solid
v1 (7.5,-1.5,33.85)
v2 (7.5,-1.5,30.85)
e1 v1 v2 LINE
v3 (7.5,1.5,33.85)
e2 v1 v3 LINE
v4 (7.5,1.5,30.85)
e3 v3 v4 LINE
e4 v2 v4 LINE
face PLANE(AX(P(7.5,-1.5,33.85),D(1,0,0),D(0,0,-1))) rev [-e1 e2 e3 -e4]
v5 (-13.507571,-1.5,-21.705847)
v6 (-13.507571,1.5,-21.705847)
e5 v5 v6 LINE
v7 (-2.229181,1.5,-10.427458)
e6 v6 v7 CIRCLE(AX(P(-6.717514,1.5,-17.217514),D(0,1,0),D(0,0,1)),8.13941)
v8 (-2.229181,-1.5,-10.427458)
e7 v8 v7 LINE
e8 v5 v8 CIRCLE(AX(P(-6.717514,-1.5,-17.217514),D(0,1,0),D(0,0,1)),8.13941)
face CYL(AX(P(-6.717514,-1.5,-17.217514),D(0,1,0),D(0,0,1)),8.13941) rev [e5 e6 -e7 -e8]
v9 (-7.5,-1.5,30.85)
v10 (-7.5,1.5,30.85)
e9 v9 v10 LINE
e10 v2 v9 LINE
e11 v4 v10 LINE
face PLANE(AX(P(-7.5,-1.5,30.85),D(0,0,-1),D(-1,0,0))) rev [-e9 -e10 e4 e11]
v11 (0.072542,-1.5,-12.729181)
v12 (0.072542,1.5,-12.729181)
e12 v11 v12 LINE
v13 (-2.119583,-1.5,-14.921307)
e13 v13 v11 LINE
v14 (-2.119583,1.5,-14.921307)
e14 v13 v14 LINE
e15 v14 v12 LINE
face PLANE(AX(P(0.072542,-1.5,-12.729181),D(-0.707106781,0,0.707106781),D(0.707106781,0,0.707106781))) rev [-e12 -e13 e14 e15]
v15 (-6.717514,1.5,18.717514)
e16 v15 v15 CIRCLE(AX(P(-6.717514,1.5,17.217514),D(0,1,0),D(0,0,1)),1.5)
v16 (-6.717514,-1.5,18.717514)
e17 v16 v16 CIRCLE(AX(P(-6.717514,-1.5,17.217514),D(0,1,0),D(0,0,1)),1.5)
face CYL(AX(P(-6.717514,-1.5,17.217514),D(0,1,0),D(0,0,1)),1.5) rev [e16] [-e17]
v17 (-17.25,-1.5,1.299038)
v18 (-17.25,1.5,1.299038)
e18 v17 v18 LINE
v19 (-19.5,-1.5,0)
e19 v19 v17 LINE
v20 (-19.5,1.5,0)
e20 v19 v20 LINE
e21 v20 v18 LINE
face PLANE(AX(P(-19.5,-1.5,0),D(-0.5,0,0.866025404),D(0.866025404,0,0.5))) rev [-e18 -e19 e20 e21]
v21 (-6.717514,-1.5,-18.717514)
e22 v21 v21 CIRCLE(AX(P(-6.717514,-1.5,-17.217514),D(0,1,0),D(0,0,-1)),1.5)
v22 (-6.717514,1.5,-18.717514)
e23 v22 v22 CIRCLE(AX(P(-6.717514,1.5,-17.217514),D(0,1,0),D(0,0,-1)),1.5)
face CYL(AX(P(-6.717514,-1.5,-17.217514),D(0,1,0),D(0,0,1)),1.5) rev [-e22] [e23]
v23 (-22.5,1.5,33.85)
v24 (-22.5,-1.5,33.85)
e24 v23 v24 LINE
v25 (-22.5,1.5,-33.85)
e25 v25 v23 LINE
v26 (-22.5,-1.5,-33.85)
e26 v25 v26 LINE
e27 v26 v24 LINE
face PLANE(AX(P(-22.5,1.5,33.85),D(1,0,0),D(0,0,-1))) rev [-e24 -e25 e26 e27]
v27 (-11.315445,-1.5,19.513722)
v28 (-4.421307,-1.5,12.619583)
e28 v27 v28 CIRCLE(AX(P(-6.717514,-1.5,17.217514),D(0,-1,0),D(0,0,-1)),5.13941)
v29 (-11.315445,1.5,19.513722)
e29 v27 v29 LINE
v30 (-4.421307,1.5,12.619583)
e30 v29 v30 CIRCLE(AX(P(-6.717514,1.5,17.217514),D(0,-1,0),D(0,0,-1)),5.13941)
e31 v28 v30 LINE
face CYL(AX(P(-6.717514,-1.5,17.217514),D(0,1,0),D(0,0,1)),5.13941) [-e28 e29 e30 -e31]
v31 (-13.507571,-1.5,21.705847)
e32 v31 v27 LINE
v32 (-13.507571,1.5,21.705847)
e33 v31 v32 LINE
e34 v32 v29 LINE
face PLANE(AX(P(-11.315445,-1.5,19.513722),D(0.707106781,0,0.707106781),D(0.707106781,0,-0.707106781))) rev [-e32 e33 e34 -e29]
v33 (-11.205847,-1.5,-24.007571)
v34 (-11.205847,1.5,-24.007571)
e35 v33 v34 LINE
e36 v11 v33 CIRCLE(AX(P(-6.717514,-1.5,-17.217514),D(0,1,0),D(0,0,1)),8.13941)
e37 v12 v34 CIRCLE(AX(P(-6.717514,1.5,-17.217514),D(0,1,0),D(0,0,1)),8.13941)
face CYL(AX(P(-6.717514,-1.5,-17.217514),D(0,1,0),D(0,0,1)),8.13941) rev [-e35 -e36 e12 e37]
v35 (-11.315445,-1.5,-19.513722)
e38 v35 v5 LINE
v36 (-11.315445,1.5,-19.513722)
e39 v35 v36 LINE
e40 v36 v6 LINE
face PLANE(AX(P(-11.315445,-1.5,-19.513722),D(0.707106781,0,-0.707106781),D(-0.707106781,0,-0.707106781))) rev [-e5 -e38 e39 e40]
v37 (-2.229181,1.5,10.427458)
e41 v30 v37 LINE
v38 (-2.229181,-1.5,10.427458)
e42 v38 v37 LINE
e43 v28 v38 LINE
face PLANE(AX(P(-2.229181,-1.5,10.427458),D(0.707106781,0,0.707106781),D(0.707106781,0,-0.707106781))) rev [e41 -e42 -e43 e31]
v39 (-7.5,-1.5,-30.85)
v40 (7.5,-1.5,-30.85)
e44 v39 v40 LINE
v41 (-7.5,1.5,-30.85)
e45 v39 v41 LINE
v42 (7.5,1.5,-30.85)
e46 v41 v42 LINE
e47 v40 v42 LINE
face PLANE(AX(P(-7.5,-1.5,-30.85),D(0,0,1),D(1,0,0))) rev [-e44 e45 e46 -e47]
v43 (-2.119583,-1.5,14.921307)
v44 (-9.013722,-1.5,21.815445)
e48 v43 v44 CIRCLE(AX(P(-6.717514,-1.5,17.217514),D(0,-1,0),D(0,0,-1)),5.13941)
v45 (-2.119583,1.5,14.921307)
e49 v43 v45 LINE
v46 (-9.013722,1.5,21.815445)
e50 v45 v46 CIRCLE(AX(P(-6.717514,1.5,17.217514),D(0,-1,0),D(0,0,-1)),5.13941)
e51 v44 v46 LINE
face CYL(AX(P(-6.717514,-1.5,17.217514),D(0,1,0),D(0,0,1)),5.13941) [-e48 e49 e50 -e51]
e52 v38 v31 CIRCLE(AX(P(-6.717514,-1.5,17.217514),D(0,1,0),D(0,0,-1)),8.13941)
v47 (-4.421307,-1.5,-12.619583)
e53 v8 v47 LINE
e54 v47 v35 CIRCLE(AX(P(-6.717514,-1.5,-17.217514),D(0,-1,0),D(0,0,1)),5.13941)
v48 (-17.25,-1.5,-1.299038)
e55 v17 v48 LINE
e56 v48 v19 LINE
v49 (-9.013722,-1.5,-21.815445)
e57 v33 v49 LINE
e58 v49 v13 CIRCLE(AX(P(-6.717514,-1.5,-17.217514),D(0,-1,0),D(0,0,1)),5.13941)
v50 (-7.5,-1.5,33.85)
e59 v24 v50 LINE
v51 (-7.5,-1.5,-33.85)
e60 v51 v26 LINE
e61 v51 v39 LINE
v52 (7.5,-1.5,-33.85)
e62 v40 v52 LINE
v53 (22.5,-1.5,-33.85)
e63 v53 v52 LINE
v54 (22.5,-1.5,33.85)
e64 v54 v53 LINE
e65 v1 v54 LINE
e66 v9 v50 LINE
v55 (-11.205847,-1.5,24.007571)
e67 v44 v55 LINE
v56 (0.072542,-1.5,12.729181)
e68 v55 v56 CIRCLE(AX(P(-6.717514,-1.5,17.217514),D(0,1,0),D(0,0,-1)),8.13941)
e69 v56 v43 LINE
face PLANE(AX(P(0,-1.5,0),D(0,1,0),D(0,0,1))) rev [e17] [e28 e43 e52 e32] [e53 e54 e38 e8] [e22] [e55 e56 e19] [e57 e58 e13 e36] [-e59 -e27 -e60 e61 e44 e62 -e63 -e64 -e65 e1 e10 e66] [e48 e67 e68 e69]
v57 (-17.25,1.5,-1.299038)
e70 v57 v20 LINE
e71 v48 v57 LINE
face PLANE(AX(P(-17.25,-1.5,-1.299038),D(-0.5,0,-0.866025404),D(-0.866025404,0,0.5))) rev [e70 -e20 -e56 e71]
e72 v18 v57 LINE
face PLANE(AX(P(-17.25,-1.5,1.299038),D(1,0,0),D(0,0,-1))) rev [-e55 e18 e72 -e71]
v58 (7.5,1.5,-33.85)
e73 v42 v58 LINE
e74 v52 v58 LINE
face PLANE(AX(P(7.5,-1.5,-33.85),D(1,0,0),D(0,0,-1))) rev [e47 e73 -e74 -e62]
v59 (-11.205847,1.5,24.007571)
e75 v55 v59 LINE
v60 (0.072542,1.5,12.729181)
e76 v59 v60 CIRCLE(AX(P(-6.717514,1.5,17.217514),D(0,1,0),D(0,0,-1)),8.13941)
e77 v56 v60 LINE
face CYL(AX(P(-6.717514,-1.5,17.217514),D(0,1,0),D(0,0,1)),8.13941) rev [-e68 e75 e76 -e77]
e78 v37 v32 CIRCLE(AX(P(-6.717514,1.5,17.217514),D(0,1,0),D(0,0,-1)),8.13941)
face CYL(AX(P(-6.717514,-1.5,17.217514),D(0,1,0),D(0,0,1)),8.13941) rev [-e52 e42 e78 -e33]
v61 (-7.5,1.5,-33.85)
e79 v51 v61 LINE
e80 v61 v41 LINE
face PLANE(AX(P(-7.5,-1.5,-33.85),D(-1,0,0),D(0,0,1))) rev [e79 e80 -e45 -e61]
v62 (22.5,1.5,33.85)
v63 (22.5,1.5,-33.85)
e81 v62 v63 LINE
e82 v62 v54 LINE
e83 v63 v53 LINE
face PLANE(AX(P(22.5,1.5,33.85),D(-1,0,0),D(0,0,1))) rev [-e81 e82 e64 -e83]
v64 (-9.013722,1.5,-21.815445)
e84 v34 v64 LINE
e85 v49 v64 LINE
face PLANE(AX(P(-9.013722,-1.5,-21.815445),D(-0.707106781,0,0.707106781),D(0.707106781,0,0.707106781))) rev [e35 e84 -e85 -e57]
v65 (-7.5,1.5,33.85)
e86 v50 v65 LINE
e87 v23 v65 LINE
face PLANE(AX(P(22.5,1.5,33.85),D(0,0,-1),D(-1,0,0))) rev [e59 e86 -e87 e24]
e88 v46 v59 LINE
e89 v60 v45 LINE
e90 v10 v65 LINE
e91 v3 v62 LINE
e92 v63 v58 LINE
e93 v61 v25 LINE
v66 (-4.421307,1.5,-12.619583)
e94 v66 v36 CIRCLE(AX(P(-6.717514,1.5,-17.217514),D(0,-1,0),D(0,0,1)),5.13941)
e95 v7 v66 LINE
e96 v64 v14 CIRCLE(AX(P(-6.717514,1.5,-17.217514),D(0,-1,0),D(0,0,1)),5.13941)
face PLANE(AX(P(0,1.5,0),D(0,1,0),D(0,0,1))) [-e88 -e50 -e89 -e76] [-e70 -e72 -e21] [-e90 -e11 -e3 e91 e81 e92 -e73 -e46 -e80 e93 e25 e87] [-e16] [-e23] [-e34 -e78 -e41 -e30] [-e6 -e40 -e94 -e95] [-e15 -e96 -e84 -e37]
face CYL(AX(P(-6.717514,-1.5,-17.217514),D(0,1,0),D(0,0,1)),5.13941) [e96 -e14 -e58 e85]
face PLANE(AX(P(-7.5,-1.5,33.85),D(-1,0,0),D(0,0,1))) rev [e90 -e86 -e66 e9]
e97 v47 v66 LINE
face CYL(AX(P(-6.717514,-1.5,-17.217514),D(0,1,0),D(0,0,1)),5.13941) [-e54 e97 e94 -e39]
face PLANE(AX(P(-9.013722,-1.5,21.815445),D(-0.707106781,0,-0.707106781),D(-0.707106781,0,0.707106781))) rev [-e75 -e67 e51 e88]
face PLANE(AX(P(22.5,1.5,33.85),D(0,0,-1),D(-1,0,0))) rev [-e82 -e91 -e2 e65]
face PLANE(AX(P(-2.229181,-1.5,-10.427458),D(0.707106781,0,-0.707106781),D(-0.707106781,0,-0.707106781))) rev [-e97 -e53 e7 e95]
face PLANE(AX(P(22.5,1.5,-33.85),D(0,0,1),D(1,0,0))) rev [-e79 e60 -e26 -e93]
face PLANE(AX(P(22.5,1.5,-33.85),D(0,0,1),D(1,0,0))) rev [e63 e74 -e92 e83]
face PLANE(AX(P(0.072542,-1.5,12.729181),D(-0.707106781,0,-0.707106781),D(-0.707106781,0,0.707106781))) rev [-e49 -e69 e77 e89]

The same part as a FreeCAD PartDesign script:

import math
import FreeCAD as App
import Part
import Sketcher
from FreeCAD import Vector
Q = App.Units.Quantity

doc = App.newDocument("Part")
params = doc.addObject("Spreadsheet::Sheet", "Params")
for row, (alias, value) in enumerate([
    ("sketch1_width", "45 mm"),
    ("sketch1_height", "67.7 mm"),
    ("pad1_length", "3 mm"),
    ("sketch2_width", "15 mm"),
    ("sketch2_height", "3 mm"),
    ("sketch3_diameter", "3 mm"),
], start=1):
    params.set(f"A{row}", alias)
    params.set(f"B{row}", "=" + value)
    params.setAlias(f"B{row}", alias)

body = doc.addObject("PartDesign::Body", "Body")

sketch1 = body.newObject("Sketcher::SketchObject", "Sketch")
sketch1.AttachmentSupport = (doc.getObject("XZ_Plane"), [""])
sketch1.MapMode = "FlatFace"
sketch1.addGeometry(Part.LineSegment(Vector(-22, -34, 0), Vector(-22, 34, 0)), False)
sketch1.addGeometry(Part.LineSegment(Vector(-22, 34, 0), Vector(22, 34, 0)), False)
sketch1.addGeometry(Part.LineSegment(Vector(22, 34, 0), Vector(22, -34, 0)), False)
sketch1.addGeometry(Part.LineSegment(Vector(22, -34, 0), Vector(-22, -34, 0)), False)
sketch1.addConstraint(Sketcher.Constraint("Coincident", 0, 2, 1, 1))
sketch1.addConstraint(Sketcher.Constraint("Coincident", 1, 2, 2, 1))
sketch1.addConstraint(Sketcher.Constraint("Coincident", 2, 2, 3, 1))
sketch1.addConstraint(Sketcher.Constraint("Coincident", 3, 2, 0, 1))
sketch1.addConstraint(Sketcher.Constraint("Vertical", 0))
sketch1.addConstraint(Sketcher.Constraint("Horizontal", 1))
sketch1.addConstraint(Sketcher.Constraint("Vertical", 2))
sketch1.addConstraint(Sketcher.Constraint("Horizontal", 3))
sketch1.addConstraint(Sketcher.Constraint("Symmetric", 0, 2, 2, 2, -1, 1))
sketch1.addConstraint(Sketcher.Constraint("DistanceX", 1, 1, 1, 2, Q("45 mm")))
sketch1.addConstraint(Sketcher.Constraint("DistanceY", 0, 1, 0, 2, Q("67.7 mm")))
sketch1.setExpression("Constraints[9]", "Params.sketch1_width")
sketch1.setExpression("Constraints[10]", "Params.sketch1_height")
pad1 = body.newObject("PartDesign::Pad", "Pad")
pad1.Profile = sketch1
pad1.setExpression("Length", "Params.pad1_length")
pad1.Midplane = True

sketch2 = body.newObject("Sketcher::SketchObject", "Sketch001")
sketch2.AttachmentSupport = (doc.getObject("XZ_Plane"), [""])
sketch2.MapMode = "FlatFace"
sketch2.addGeometry(Part.LineSegment(Vector(-7.5, 30.9, 0), Vector(-7.5, 33.9, 0)), False)
sketch2.addGeometry(Part.LineSegment(Vector(-7.5, 33.9, 0), Vector(7.5, 33.9, 0)), False)
sketch2.addGeometry(Part.LineSegment(Vector(7.5, 33.9, 0), Vector(7.5, 30.9, 0)), False)
sketch2.addGeometry(Part.LineSegment(Vector(7.5, 30.9, 0), Vector(-7.5, 30.9, 0)), False)
sketch2.addGeometry(Part.LineSegment(Vector(-7.5, -33.9, 0), Vector(-7.5, -30.9, 0)), False)
sketch2.addGeometry(Part.LineSegment(Vector(-7.5, -30.9, 0), Vector(7.5, -30.9, 0)), False)
sketch2.addGeometry(Part.LineSegment(Vector(7.5, -30.9, 0), Vector(7.5, -33.9, 0)), False)
sketch2.addGeometry(Part.LineSegment(Vector(7.5, -33.9, 0), Vector(-7.5, -33.9, 0)), False)
sketch2.addConstraint(Sketcher.Constraint("Coincident", 0, 2, 1, 1))
sketch2.addConstraint(Sketcher.Constraint("Coincident", 1, 2, 2, 1))
sketch2.addConstraint(Sketcher.Constraint("Coincident", 2, 2, 3, 1))
sketch2.addConstraint(Sketcher.Constraint("Coincident", 3, 2, 0, 1))
sketch2.addConstraint(Sketcher.Constraint("Coincident", 4, 2, 5, 1))
sketch2.addConstraint(Sketcher.Constraint("Coincident", 5, 2, 6, 1))
sketch2.addConstraint(Sketcher.Constraint("Coincident", 6, 2, 7, 1))
sketch2.addConstraint(Sketcher.Constraint("Coincident", 7, 2, 4, 1))
sketch2.addConstraint(Sketcher.Constraint("Vertical", 0))
sketch2.addConstraint(Sketcher.Constraint("Horizontal", 1))
sketch2.addConstraint(Sketcher.Constraint("Vertical", 2))
sketch2.addConstraint(Sketcher.Constraint("Horizontal", 3))
sketch2.addConstraint(Sketcher.Constraint("Vertical", 4))
sketch2.addConstraint(Sketcher.Constraint("Horizontal", 5))
sketch2.addConstraint(Sketcher.Constraint("Vertical", 6))
sketch2.addConstraint(Sketcher.Constraint("Horizontal", 7))
sketch2.addConstraint(Sketcher.Constraint("Symmetric", 2, 2, 4, 2, -1, 1))
sketch2.addConstraint(Sketcher.Constraint("Symmetric", 0, 2, 6, 2, -1, 1))
sketch2.addConstraint(Sketcher.Constraint("Vertical", 3, 2, 4, 2))
sketch2.addConstraint(Sketcher.Constraint("DistanceX", 1, 1, 1, 2, Q("15 mm")))
sketch2.addConstraint(Sketcher.Constraint("DistanceY", 0, 1, 0, 2, Q("3 mm")))
sketch2.addConstraint(Sketcher.Constraint("DistanceY", 4, 2, 3, 2, Q("61.7 mm")))
sketch2.setExpression("Constraints[19]", "Params.sketch2_width")
sketch2.setExpression("Constraints[20]", "Params.sketch2_height")
pocket1 = body.newObject("PartDesign::Pocket", "Pocket")
pocket1.Profile = sketch2
pocket1.Type = "ThroughAll"
pocket1.Midplane = True

sketch3 = body.newObject("Sketcher::SketchObject", "Sketch002")
sketch3.AttachmentSupport = (doc.getObject("XZ_Plane"), [""])
sketch3.MapMode = "FlatFace"
sketch3.addGeometry(Part.Circle(Vector(-6.7, 17.2, 0), Vector(0, 0, 1), 1.5), False)
sketch3.addGeometry(Part.Circle(Vector(-6.7, -17.2, 0), Vector(0, 0, 1), 1.5), False)
sketch3.addGeometry(Part.LineSegment(Vector(-2.1, -14.9, 0), Vector(0.1, -12.7, 0)), False)
sketch3.addGeometry(Part.ArcOfCircle(Part.Circle(Vector(-6.7, -17.2, 0), Vector(0, 0, 1), 8.1), math.radians(-123), math.radians(33)), False)
sketch3.addGeometry(Part.LineSegment(Vector(-11.2, -24, 0), Vector(-9, -21.8, 0)), False)
sketch3.addGeometry(Part.ArcOfCircle(Part.Circle(Vector(-6.7, -17.2, 0), Vector(0, 0, 1), 5.1), math.radians(-117), math.radians(27)), False)
sketch3.addGeometry(Part.LineSegment(Vector(-2.2, -10.4, 0), Vector(-4.4, -12.6, 0)), False)
sketch3.addGeometry(Part.ArcOfCircle(Part.Circle(Vector(-6.7, -17.2, 0), Vector(0, 0, 1), 5.1), math.radians(63), math.radians(207)), False)
sketch3.addGeometry(Part.LineSegment(Vector(-11.3, -19.5, 0), Vector(-13.5, -21.7, 0)), False)
sketch3.addGeometry(Part.ArcOfCircle(Part.Circle(Vector(-6.7, -17.2, 0), Vector(0, 0, 1), 8.1), math.radians(57), math.radians(213)), False)
sketch3.addGeometry(Part.LineSegment(Vector(0.1, 12.7, 0), Vector(-2.1, 14.9, 0)), False)
sketch3.addGeometry(Part.ArcOfCircle(Part.Circle(Vector(-6.7, 17.2, 0), Vector(0, 0, 1), 5.1), math.radians(-27), math.radians(117)), False)
sketch3.addGeometry(Part.LineSegment(Vector(-9, 21.8, 0), Vector(-11.2, 24, 0)), False)
sketch3.addGeometry(Part.ArcOfCircle(Part.Circle(Vector(-6.7, 17.2, 0), Vector(0, 0, 1), 8.1), math.radians(-33), math.radians(123)), False)
sketch3.addGeometry(Part.LineSegment(Vector(-4.4, 12.6, 0), Vector(-2.2, 10.4, 0)), False)
sketch3.addGeometry(Part.ArcOfCircle(Part.Circle(Vector(-6.7, 17.2, 0), Vector(0, 0, 1), 8.1), math.radians(147), math.radians(303)), False)
sketch3.addGeometry(Part.LineSegment(Vector(-13.5, 21.7, 0), Vector(-11.3, 19.5, 0)), False)
sketch3.addGeometry(Part.ArcOfCircle(Part.Circle(Vector(-6.7, 17.2, 0), Vector(0, 0, 1), 5.1), math.radians(153), math.radians(297)), False)
sketch3.addConstraint(Sketcher.Constraint("Coincident", 2, 2, 3, 2))
sketch3.addConstraint(Sketcher.Constraint("Coincident", 3, 1, 4, 1))
sketch3.addConstraint(Sketcher.Constraint("Coincident", 4, 2, 5, 1))
sketch3.addConstraint(Sketcher.Constraint("Coincident", 5, 2, 2, 1))
sketch3.addConstraint(Sketcher.Constraint("Coincident", 6, 2, 7, 1))
sketch3.addConstraint(Sketcher.Constraint("Coincident", 7, 2, 8, 1))
sketch3.addConstraint(Sketcher.Constraint("Coincident", 8, 2, 9, 2))
sketch3.addConstraint(Sketcher.Constraint("Coincident", 9, 1, 6, 1))
sketch3.addConstraint(Sketcher.Constraint("Coincident", 10, 2, 11, 1))
sketch3.addConstraint(Sketcher.Constraint("Coincident", 11, 2, 12, 1))
sketch3.addConstraint(Sketcher.Constraint("Coincident", 12, 2, 13, 2))
sketch3.addConstraint(Sketcher.Constraint("Coincident", 13, 1, 10, 1))
sketch3.addConstraint(Sketcher.Constraint("Coincident", 14, 2, 15, 2))
sketch3.addConstraint(Sketcher.Constraint("Coincident", 15, 1, 16, 1))
sketch3.addConstraint(Sketcher.Constraint("Coincident", 16, 2, 17, 1))
sketch3.addConstraint(Sketcher.Constraint("Coincident", 17, 2, 14, 1))
sketch3.addConstraint(Sketcher.Constraint("Coincident", 3, 3, 1, 3))
sketch3.addConstraint(Sketcher.Constraint("Coincident", 5, 3, 1, 3))
sketch3.addConstraint(Sketcher.Constraint("Coincident", 7, 3, 1, 3))
sketch3.addConstraint(Sketcher.Constraint("Coincident", 9, 3, 1, 3))
sketch3.addConstraint(Sketcher.Constraint("Coincident", 11, 3, 0, 3))
sketch3.addConstraint(Sketcher.Constraint("Coincident", 13, 3, 0, 3))
sketch3.addConstraint(Sketcher.Constraint("Coincident", 15, 3, 0, 3))
sketch3.addConstraint(Sketcher.Constraint("Coincident", 17, 3, 0, 3))
sketch3.addConstraint(Sketcher.Constraint("Equal", 0, 1))
sketch3.addConstraint(Sketcher.Constraint("Equal", 5, 7))
sketch3.addConstraint(Sketcher.Constraint("Equal", 3, 9))
sketch3.addConstraint(Sketcher.Constraint("Equal", 7, 11))
sketch3.addConstraint(Sketcher.Constraint("Equal", 9, 13))
sketch3.addConstraint(Sketcher.Constraint("Equal", 13, 15))
sketch3.addConstraint(Sketcher.Constraint("Equal", 11, 17))
sketch3.addConstraint(Sketcher.Constraint("Symmetric", 0, 3, 1, 3, -1))
sketch3.addConstraint(Sketcher.Constraint("Parallel", 2, 4))
sketch3.addConstraint(Sketcher.Constraint("Parallel", 4, 6))
sketch3.addConstraint(Sketcher.Constraint("Parallel", 6, 8))
sketch3.addConstraint(Sketcher.Constraint("Perpendicular", 8, 10))
sketch3.addConstraint(Sketcher.Constraint("Parallel", 10, 12))
sketch3.addConstraint(Sketcher.Constraint("Parallel", 12, 14))
sketch3.addConstraint(Sketcher.Constraint("Parallel", 14, 16))
sketch3.addConstraint(Sketcher.Constraint("Vertical", 5, 2, 10, 2))
sketch3.addConstraint(Sketcher.Constraint("Vertical", 4, 2, 11, 2))
sketch3.addConstraint(Sketcher.Constraint("Vertical", 3, 1, 12, 2))
sketch3.addConstraint(Sketcher.Constraint("Vertical", 9, 1, 14, 2))
sketch3.addConstraint(Sketcher.Constraint("Vertical", 8, 2, 15, 1))
sketch3.addConstraint(Sketcher.Constraint("Equal", 2, 4))
sketch3.addConstraint(Sketcher.Constraint("Equal", 4, 6))
sketch3.addConstraint(Sketcher.Constraint("Equal", 6, 8))
sketch3.addConstraint(Sketcher.Constraint("Diameter", 0, Q("3 mm")))
sketch3.addConstraint(Sketcher.Constraint("Radius", 3, Q("8.13941 mm")))
sketch3.addConstraint(Sketcher.Constraint("Radius", 5, Q("5.13941 mm")))
sketch3.addConstraint(Sketcher.Constraint("DistanceY", 2, 2, -1, 1, Q("12.729181 mm")))
sketch3.addConstraint(Sketcher.Constraint("DistanceY", 3, 1, -1, 1, Q("24.007571 mm")))
sketch3.addConstraint(Sketcher.Constraint("DistanceX", 4, 2, -1, 1, Q("9.013722 mm")))
sketch3.setExpression("Constraints[47]", "Params.sketch3_diameter")
pocket2 = body.newObject("PartDesign::Pocket", "Pocket001")
pocket2.Profile = sketch3
pocket2.Type = "ThroughAll"
pocket2.Midplane = True

sketch4 = body.newObject("Sketcher::SketchObject", "Sketch003")
sketch4.AttachmentSupport = (doc.getObject("XZ_Plane"), [""])
sketch4.MapMode = "FlatFace"
sketch4.addGeometry(Part.LineSegment(Vector(-19.5, 0, 0), Vector(-17.2, 1.3, 0)), False)
sketch4.addGeometry(Part.LineSegment(Vector(-17.2, 1.3, 0), Vector(-17.2, -1.3, 0)), False)
sketch4.addGeometry(Part.LineSegment(Vector(-17.2, -1.3, 0), Vector(-19.5, 0, 0)), False)
sketch4.addConstraint(Sketcher.Constraint("Coincident", 0, 2, 1, 1))
sketch4.addConstraint(Sketcher.Constraint("Coincident", 1, 2, 2, 1))
sketch4.addConstraint(Sketcher.Constraint("Coincident", 2, 2, 0, 1))
sketch4.addConstraint(Sketcher.Constraint("Vertical", 1))
sketch4.addConstraint(Sketcher.Constraint("PointOnObject", 2, 2, -1))
sketch4.addConstraint(Sketcher.Constraint("Equal", 0, 2))
sketch4.addConstraint(Sketcher.Constraint("Angle", 0, Q("30 deg")))
sketch4.addConstraint(Sketcher.Constraint("DistanceX", 2, 2, -1, 1, Q("19.5 mm")))
sketch4.addConstraint(Sketcher.Constraint("DistanceX", 0, 2, -1, 1, Q("17.25 mm")))
pocket3 = body.newObject("PartDesign::Pocket", "Pocket002")
pocket3.Profile = sketch4
pocket3.Type = "ThroughAll"
pocket3.Midplane = True

doc.recompute()
